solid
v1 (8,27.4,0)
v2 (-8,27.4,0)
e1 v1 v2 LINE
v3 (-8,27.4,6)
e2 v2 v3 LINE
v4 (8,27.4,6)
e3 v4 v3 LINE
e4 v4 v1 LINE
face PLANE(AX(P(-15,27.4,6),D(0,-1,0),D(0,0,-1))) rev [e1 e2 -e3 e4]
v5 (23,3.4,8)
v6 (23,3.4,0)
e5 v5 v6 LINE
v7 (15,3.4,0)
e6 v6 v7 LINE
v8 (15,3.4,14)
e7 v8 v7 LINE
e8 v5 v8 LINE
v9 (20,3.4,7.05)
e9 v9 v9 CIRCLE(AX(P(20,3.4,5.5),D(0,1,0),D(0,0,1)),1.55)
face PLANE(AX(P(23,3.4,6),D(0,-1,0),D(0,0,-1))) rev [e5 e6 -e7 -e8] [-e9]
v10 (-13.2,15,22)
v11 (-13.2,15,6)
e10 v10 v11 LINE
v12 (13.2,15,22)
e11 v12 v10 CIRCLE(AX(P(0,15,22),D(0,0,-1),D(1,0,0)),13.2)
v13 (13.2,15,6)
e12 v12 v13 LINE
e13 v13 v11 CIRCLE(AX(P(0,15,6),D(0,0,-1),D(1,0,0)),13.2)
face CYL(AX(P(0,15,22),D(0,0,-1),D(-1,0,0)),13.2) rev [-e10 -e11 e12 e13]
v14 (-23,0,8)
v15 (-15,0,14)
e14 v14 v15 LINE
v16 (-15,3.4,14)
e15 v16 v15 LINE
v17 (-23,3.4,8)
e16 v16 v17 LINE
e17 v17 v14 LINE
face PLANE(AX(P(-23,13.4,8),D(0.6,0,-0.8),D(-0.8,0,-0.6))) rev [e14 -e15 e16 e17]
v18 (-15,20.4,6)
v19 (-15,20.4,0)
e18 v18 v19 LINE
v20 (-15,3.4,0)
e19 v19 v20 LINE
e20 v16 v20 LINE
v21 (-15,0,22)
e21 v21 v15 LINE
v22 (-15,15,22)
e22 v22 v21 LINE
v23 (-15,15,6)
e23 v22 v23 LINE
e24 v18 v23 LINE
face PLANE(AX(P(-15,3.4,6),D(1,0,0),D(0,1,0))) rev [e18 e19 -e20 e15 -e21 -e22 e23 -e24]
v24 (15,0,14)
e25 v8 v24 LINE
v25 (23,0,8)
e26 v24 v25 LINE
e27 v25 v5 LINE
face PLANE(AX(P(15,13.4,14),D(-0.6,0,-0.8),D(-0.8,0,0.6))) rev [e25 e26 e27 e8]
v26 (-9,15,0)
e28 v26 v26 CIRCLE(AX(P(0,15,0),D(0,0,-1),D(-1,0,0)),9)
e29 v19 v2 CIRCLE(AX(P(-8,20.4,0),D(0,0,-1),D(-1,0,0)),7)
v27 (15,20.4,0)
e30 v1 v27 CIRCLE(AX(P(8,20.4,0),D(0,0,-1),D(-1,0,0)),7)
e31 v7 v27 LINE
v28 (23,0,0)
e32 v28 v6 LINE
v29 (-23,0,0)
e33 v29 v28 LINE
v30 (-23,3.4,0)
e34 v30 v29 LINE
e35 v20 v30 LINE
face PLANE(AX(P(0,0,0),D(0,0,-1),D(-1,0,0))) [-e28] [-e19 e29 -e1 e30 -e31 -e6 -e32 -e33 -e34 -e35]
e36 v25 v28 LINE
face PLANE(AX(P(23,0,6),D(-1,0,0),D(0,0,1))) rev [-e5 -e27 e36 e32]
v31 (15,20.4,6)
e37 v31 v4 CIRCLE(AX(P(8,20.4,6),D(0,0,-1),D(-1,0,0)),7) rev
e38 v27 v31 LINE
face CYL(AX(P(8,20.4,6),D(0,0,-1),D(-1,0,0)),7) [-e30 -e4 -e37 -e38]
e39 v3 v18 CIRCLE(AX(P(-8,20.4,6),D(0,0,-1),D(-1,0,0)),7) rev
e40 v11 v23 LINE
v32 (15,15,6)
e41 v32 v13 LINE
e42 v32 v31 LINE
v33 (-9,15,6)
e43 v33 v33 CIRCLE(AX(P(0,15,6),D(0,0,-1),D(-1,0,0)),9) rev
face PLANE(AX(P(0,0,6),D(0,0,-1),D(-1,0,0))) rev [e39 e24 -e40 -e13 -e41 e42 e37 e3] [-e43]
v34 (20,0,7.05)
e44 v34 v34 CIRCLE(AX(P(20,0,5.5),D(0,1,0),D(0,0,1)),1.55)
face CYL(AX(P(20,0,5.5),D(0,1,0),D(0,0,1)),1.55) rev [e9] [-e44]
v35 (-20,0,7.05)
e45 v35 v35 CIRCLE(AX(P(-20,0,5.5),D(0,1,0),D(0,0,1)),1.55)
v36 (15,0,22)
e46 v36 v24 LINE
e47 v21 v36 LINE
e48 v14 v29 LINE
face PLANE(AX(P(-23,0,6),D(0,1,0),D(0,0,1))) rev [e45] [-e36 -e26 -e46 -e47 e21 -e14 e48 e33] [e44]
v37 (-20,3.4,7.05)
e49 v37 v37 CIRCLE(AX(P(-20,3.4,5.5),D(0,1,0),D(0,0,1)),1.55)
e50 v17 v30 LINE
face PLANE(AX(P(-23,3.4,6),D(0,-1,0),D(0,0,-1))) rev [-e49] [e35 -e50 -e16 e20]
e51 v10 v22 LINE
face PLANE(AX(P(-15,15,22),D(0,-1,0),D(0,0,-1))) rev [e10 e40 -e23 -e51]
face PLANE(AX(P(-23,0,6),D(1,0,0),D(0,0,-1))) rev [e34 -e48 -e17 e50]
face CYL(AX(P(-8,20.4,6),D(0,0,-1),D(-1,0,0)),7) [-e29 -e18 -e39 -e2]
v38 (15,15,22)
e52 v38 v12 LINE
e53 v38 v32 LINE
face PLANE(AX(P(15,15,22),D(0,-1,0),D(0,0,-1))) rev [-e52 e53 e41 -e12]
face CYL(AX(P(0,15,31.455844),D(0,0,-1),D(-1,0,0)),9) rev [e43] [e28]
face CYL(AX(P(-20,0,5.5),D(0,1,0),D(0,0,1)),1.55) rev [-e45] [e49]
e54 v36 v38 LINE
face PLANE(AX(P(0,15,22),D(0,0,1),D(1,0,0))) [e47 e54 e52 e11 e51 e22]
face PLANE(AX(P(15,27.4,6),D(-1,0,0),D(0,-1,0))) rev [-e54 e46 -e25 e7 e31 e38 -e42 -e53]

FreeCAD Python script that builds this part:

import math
import FreeCAD as App
import Part
import Sketcher

V = App.Vector


def edges_at(feature, points):
    """Names of the edges that pass closest to the given points."""
    edges = feature.Shape.Edges
    near = lambda p: min(range(len(edges)), key=lambda i: edges[i].distToShape(Part.Vertex(*p))[0])
    return sorted({f"Edge{near(p) + 1}" for p in points})

doc = App.newDocument("Part")
body = doc.addObject("PartDesign::Body", "Body")

# Sketch on XY plane
sketch1 = body.newObject("Sketcher::SketchObject", "Sketch")
sketch1.AttachmentSupport = (doc.getObject("XY_Plane"), [""])
sketch1.MapMode = "FlatFace"
sketch1.addGeometry([
    Part.LineSegment(V(-23, 0, 0), V(23, 0, 0)),  # 0
    Part.LineSegment(V(23, 0, 0), V(23, 3.4, 0)),  # 1
    Part.LineSegment(V(23, 3.4, 0), V(15, 3.4, 0)),  # 2
    Part.LineSegment(V(15, 3.4, 0), V(15, 27.4, 0)),  # 3
    Part.LineSegment(V(15, 27.4, 0), V(-15, 27.4, 0)),  # 4
    Part.LineSegment(V(-15, 27.4, 0), V(-15, 3.4, 0)),  # 5
    Part.LineSegment(V(-15, 3.4, 0), V(-23, 3.4, 0)),  # 6
    Part.LineSegment(V(-23, 3.4, 0), V(-23, 0, 0)),  # 7
], False)
sketch1.addConstraint([
    Sketcher.Constraint("Coincident", 0, 2, 1, 1),
    Sketcher.Constraint("Coincident", 1, 2, 2, 1),
    Sketcher.Constraint("Coincident", 2, 2, 3, 1),
    Sketcher.Constraint("Coincident", 3, 2, 4, 1),
    Sketcher.Constraint("Coincident", 4, 2, 5, 1),
    Sketcher.Constraint("Coincident", 5, 2, 6, 1),
    Sketcher.Constraint("Coincident", 6, 2, 7, 1),
    Sketcher.Constraint("Coincident", 7, 2, 0, 1),
    Sketcher.Constraint("Horizontal", 0),
    Sketcher.Constraint("Vertical", 1),
    Sketcher.Constraint("Horizontal", 2),
    Sketcher.Constraint("Vertical", 3),
    Sketcher.Constraint("Horizontal", 4),
    Sketcher.Constraint("Vertical", 5),
    Sketcher.Constraint("Horizontal", 6),
    Sketcher.Constraint("Vertical", 7),
    Sketcher.Constraint("Symmetric", 0, 2, 7, 2, -1, 1),
    Sketcher.Constraint("Symmetric", 2, 2, 5, 2, -2),
    Sketcher.Constraint("DistanceX", 0, 1, 0, 2, 46.0),
    Sketcher.Constraint("DistanceX", 2, 2, 2, 1, 8.0),
    Sketcher.Constraint("DistanceY", 3, 1, 3, 2, 24.0),
    Sketcher.Constraint("DistanceY", 1, 1, 1, 2, 3.4),
])
pad1 = body.newObject("PartDesign::Pad", "Pad")
pad1.Profile = sketch1
pad1.Length = 6

# Sketch on XY plane
sketch2 = body.newObject("Sketcher::SketchObject", "Sketch001")
sketch2.AttachmentSupport = (doc.getObject("XY_Plane"), [""])
sketch2.MapMode = "FlatFace"
sketch2.addGeometry(Part.Circle(V(0, 15, 0), V(0, 0, 1), 9), False)
sketch2.addConstraint([
    Sketcher.Constraint("PointOnObject", 0, 3, -2),
    Sketcher.Constraint("Diameter", 0, 18.0),
    Sketcher.Constraint("DistanceY", -1, 1, 0, 3, 15.0),
])
pocket1 = body.newObject("PartDesign::Pocket", "Pocket")
pocket1.Profile = sketch2
pocket1.Length = 6
pocket1.Reversed = True
doc.recompute()

fillet = body.newObject("PartDesign::Fillet", "Fillet")
fillet.Base = (pocket1, edges_at(pocket1, [(-15, 27.4, 3), (15, 27.4, 3)]))
fillet.Radius = 7

# Sketch on XY plane
sketch3 = body.newObject("Sketcher::SketchObject", "Sketch002")
sketch3.AttachmentSupport = (doc.getObject("XY_Plane"), [""])
sketch3.MapMode = "FlatFace"
sketch3.AttachmentOffset = App.Placement(V(0, 0, 6), App.Rotation())
sketch3.addGeometry([
    Part.LineSegment(V(-15, 0, 0), V(15, 0, 0)),  # 0
    Part.LineSegment(V(15, 0, 0), V(15, 15, 0)),  # 1
    Part.LineSegment(V(15, 15, 0), V(13.2, 15, 0)),  # 2
    Part.ArcOfCircle(Part.Circle(V(0, 15, 0), V(0, 0, 1), 13.2), math.radians(180), math.radians(360)),  # 3
    Part.LineSegment(V(-13.2, 15, 0), V(-15, 15, 0)),  # 4
    Part.LineSegment(V(-15, 15, 0), V(-15, 0, 0)),  # 5
], False)
sketch3.addConstraint([
    Sketcher.Constraint("Coincident", 0, 2, 1, 1),
    Sketcher.Constraint("Coincident", 1, 2, 2, 1),
    Sketcher.Constraint("Coincident", 2, 2, 3, 2),
    Sketcher.Constraint("Coincident", 3, 1, 4, 1),
    Sketcher.Constraint("Coincident", 4, 2, 5, 1),
    Sketcher.Constraint("Coincident", 5, 2, 0, 1),
    Sketcher.Constraint("Horizontal", 0),
    Sketcher.Constraint("Vertical", 1),
    Sketcher.Constraint("Horizontal", 2),
    Sketcher.Constraint("Horizontal", 4),
    Sketcher.Constraint("Vertical", 5),
    Sketcher.Constraint("Symmetric", 0, 2, 5, 2, -1, 1),
    Sketcher.Constraint("Symmetric", 2, 2, 3, 1, -2),
    Sketcher.Constraint("Horizontal", 3, 3, 1, 2),
    Sketcher.Constraint("Radius", 3, 13.2),
    Sketcher.Constraint("DistanceX", 0, 1, 0, 2, 30.0),
    Sketcher.Constraint("DistanceY", 1, 1, 1, 2, 15.0),
])
pad2 = body.newObject("PartDesign::Pad", "Pad001")
pad2.Profile = sketch3
pad2.Length = 16

# Sketch on XY plane
sketch4 = body.newObject("Sketcher::SketchObject", "Sketch003")
sketch4.AttachmentSupport = (doc.getObject("XY_Plane"), [""])
sketch4.MapMode = "FlatFace"
sketch4.AttachmentOffset = App.Placement(V(0, 0, 6), App.Rotation())
sketch4.addGeometry([
    Part.LineSegment(V(-23, 3.4, 0), V(-23, 0, 0)),  # 0
    Part.LineSegment(V(-23, 0, 0), V(-15, 0, 0)),  # 1
    Part.LineSegment(V(-15, 0, 0), V(-15, 3.4, 0)),  # 2
    Part.LineSegment(V(-15, 3.4, 0), V(-23, 3.4, 0)),  # 3
    Part.LineSegment(V(15, 3.4, 0), V(15, 0, 0)),  # 4
    Part.LineSegment(V(15, 0, 0), V(23, 0, 0)),  # 5
    Part.LineSegment(V(23, 0, 0), V(23, 3.4, 0)),  # 6
    Part.LineSegment(V(23, 3.4, 0), V(15, 3.4, 0)),  # 7
], False)
sketch4.addConstraint([
    Sketcher.Constraint("Coincident", 0, 2, 1, 1),
    Sketcher.Constraint("Coincident", 1, 2, 2, 1),
    Sketcher.Constraint("Coincident", 2, 2, 3, 1),
    Sketcher.Constraint("Coincident", 3, 2, 0, 1),
    Sketcher.Constraint("Coincident", 4, 2, 5, 1),
    Sketcher.Constraint("Coincident", 5, 2, 6, 1),
    Sketcher.Constraint("Coincident", 6, 2, 7, 1),
    Sketcher.Constraint("Coincident", 7, 2, 4, 1),
    Sketcher.Constraint("Vertical", 0),
    Sketcher.Constraint("Horizontal", 1),
    Sketcher.Constraint("Vertical", 2),
    Sketcher.Constraint("Horizontal", 3),
    Sketcher.Constraint("Vertical", 4),
    Sketcher.Constraint("Horizontal", 5),
    Sketcher.Constraint("Vertical", 6),
    Sketcher.Constraint("Horizontal", 7),
    Sketcher.Constraint("Symmetric", 1, 2, 4, 2, -1, 1),
    Sketcher.Constraint("Symmetric", 0, 2, 5, 2, -2),
    Sketcher.Constraint("Horizontal", 3, 2, 6, 2),
    Sketcher.Constraint("DistanceX", 1, 1, 1, 2, 8.0),
    Sketcher.Constraint("DistanceY", 0, 2, 0, 1, 3.4),
    Sketcher.Constraint("DistanceX", 0, 2, -1, 1, 23.0),
])
pad3 = body.newObject("PartDesign::Pad", "Pad002")
pad3.Profile = sketch4
pad3.Length = 2

# Sketch on XZ plane
sketch5 = body.newObject("Sketcher::SketchObject", "Sketch004")
sketch5.AttachmentSupport = (doc.getObject("XZ_Plane"), [""])
sketch5.MapMode = "FlatFace"
sketch5.AttachmentOffset = App.Placement(V(0, 0, -3.4), App.Rotation())
sketch5.addGeometry([
    Part.Circle(V(20, 5.5, 0), V(0, 0, 1), 1.55),
    Part.Circle(V(-20, 5.5, 0), V(0, 0, 1), 1.55),
], False)
sketch5.addConstraint([
    Sketcher.Constraint("Equal", 0, 1),
    Sketcher.Constraint("Symmetric", 0, 3, 1, 3, -2),
    Sketcher.Constraint("Diameter", 0, 3.1),
    Sketcher.Constraint("DistanceX", -1, 1, 0, 3, 20.0),
    Sketcher.Constraint("DistanceY", -1, 1, 0, 3, 5.5),
])
pocket2 = body.newObject("PartDesign::Pocket", "Pocket001")
pocket2.Profile = sketch5
pocket2.Type = "ThroughAll"
pocket2.Reversed = True

# Sketch on XZ plane
sketch6 = body.newObject("Sketcher::SketchObject", "Sketch005")
sketch6.AttachmentSupport = (doc.getObject("XZ_Plane"), [""])
sketch6.MapMode = "FlatFace"
sketch6.addGeometry([
    Part.LineSegment(V(-23, 8, 0), V(-15, 14, 0)),  # 0
    Part.LineSegment(V(-15, 14, 0), V(-15, 8, 0)),  # 1
    Part.LineSegment(V(-15, 8, 0), V(-23, 8, 0)),  # 2
    Part.LineSegment(V(15, 14, 0), V(23, 8, 0)),  # 3
    Part.LineSegment(V(23, 8, 0), V(15, 8, 0)),  # 4
    Part.LineSegment(V(15, 8, 0), V(15, 14, 0)),  # 5
], False)
sketch6.addConstraint([
    Sketcher.Constraint("Coincident", 0, 2, 1, 1),
    Sketcher.Constraint("Coincident", 1, 2, 2, 1),
    Sketcher.Constraint("Coincident", 2, 2, 0, 1),
    Sketcher.Constraint("Coincident", 3, 2, 4, 1),
    Sketcher.Constraint("Coincident", 4, 2, 5, 1),
    Sketcher.Constraint("Coincident", 5, 2, 3, 1),
    Sketcher.Constraint("Vertical", 1),
    Sketcher.Constraint("Horizontal", 2),
    Sketcher.Constraint("Horizontal", 4),
    Sketcher.Constraint("Vertical", 5),
    Sketcher.Constraint("Symmetric", 2, 2, 3, 2, -2),
    Sketcher.Constraint("Symmetric", 0, 2, 5, 2, -2),
    Sketcher.Constraint("DistanceX", 2, 2, 2, 1, 8.0),
    Sketcher.Constraint("DistanceY", 1, 2, 1, 1, 6.0),
    Sketcher.Constraint("DistanceX", 0, 2, -1, 1, 15.0),
    Sketcher.Constraint("DistanceY", -1, 1, 0, 2, 14.0),
])
pad4 = body.newObject("PartDesign::Pad", "Pad003")
pad4.Profile = sketch6
pad4.Length = 3.4
pad4.Reversed = True

doc.recompute()
